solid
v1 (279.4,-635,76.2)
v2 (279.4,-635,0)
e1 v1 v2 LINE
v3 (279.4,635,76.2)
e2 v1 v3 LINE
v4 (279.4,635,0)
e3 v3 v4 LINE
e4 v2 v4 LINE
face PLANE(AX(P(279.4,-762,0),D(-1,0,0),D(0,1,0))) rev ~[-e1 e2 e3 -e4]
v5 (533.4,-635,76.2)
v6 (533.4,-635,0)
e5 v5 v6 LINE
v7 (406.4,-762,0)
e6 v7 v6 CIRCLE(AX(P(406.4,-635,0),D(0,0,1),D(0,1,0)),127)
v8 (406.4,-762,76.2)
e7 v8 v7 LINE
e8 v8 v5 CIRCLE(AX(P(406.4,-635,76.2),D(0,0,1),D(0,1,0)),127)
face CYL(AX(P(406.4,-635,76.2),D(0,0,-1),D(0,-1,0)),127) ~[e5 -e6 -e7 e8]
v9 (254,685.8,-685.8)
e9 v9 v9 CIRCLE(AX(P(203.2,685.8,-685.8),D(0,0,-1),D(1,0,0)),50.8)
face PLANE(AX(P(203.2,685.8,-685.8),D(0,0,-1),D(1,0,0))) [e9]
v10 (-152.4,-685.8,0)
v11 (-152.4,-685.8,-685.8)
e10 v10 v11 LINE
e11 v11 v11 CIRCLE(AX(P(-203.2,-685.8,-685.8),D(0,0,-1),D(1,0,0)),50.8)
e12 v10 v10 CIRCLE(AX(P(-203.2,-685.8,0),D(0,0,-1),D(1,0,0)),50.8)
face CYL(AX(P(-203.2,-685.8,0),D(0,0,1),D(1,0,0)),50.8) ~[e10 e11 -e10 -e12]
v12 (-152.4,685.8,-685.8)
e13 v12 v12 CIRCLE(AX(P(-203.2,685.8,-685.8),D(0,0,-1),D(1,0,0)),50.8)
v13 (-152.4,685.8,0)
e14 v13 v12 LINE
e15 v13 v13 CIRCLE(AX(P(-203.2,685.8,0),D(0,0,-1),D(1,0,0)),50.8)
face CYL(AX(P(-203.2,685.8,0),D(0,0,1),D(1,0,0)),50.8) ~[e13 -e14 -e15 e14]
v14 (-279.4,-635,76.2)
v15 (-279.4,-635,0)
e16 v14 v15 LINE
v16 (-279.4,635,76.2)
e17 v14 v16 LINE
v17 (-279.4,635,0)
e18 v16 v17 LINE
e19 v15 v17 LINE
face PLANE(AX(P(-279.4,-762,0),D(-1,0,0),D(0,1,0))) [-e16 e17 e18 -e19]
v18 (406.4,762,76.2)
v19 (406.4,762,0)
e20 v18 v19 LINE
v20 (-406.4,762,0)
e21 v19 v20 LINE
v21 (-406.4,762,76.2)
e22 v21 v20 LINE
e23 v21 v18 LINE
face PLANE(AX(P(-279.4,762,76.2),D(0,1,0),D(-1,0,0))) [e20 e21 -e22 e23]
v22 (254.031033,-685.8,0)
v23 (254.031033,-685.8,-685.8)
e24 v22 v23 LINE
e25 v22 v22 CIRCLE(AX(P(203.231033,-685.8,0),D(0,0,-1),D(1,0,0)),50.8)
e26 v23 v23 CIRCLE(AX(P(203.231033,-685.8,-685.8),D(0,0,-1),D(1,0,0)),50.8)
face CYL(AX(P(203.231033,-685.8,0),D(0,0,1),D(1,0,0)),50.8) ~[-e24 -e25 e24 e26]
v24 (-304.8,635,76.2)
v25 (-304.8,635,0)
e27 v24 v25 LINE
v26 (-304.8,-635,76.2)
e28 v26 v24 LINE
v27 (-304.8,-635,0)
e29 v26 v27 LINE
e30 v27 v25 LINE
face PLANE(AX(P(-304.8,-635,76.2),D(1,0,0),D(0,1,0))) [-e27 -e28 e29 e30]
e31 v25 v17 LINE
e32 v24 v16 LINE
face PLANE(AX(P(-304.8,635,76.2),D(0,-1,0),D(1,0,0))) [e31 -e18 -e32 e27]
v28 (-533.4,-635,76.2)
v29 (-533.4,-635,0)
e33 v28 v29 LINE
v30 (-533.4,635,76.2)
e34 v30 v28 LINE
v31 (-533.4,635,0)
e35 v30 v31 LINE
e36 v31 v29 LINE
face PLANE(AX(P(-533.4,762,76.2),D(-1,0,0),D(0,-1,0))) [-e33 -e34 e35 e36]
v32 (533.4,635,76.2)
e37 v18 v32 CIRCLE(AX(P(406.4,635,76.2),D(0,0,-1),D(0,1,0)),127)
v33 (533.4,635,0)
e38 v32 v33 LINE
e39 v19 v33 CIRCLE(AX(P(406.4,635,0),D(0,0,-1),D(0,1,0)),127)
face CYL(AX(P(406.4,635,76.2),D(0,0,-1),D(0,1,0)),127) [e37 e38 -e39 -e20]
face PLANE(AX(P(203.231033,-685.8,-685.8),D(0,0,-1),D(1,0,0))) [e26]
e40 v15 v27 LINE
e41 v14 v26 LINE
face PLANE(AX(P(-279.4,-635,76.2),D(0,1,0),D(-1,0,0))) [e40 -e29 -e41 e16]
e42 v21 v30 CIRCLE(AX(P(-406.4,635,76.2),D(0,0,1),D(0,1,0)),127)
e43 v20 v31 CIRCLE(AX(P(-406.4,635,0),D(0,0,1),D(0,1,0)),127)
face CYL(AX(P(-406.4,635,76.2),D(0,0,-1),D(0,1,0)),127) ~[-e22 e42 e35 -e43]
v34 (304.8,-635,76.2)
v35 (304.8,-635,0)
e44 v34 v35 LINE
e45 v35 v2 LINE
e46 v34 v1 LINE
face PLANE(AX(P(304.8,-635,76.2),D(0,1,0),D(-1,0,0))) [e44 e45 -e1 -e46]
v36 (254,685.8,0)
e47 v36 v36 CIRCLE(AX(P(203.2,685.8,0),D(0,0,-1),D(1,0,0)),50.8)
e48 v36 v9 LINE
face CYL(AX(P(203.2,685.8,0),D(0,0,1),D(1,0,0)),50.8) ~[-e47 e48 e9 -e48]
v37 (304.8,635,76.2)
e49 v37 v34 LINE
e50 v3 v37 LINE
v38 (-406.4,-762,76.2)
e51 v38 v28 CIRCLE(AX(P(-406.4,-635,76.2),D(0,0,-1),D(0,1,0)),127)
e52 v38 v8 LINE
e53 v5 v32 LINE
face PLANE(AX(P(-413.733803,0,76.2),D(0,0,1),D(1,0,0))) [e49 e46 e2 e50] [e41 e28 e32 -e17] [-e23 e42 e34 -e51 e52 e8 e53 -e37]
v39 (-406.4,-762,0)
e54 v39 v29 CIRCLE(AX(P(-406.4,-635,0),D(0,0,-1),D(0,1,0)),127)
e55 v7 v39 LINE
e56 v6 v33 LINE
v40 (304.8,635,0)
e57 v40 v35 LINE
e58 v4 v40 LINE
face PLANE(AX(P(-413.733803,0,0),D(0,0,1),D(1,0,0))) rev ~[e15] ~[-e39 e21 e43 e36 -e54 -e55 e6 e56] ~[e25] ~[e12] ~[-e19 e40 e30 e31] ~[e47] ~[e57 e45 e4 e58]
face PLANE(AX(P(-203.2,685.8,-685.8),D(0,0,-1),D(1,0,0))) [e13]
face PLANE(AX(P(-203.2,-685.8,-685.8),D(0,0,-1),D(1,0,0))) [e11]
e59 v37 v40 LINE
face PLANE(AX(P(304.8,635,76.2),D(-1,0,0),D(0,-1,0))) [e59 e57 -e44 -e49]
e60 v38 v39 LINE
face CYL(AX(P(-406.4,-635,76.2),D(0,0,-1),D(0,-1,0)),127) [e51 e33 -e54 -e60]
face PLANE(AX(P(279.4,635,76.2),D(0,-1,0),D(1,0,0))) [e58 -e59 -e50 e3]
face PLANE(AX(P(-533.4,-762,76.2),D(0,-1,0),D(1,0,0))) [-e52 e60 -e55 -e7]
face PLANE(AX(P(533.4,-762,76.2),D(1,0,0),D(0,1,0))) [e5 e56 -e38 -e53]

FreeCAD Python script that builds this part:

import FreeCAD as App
import Part
import Sketcher
Q = App.Units.Quantity


def edges_at(feature, points):
    """Names of the edges that pass closest to the given points."""
    edges = feature.Shape.Edges
    near = lambda p: min(range(len(edges)), key=lambda i: edges[i].distToShape(Part.Vertex(*p))[0])
    return sorted({f"Edge{near(p) + 1}" for p in points})

doc = App.newDocument("Part")
body = doc.addObject("PartDesign::Body", "Body")

# Sketch on XY plane
sketch1 = body.newObject("Sketcher::SketchObject", "Sketch")
sketch1.AttachmentSupport = (doc.getObject("XY_Plane"), [""])
sketch1.MapMode = "FlatFace"
sketch1.addGeometry(Part.LineSegment(App.Vector(-279.4, 762, 0), App.Vector(-279.4, -762, 0)), False)
sketch1.addGeometry(Part.LineSegment(App.Vector(-279.4, -762, 0), App.Vector(279.4, -762, 0)), False)
sketch1.addGeometry(Part.LineSegment(App.Vector(279.4, -762, 0), App.Vector(279.4, 762, 0)), False)
sketch1.addGeometry(Part.LineSegment(App.Vector(279.4, 762, 0), App.Vector(-279.4, 762, 0)), False)
sketch1.addConstraint(Sketcher.Constraint("Coincident", 0, 2, 1, 1))
sketch1.addConstraint(Sketcher.Constraint("Coincident", 1, 2, 2, 1))
sketch1.addConstraint(Sketcher.Constraint("Coincident", 2, 2, 3, 1))
sketch1.addConstraint(Sketcher.Constraint("Coincident", 3, 2, 0, 1))
sketch1.addConstraint(Sketcher.Constraint("Vertical", 0))
sketch1.addConstraint(Sketcher.Constraint("Horizontal", 1))
sketch1.addConstraint(Sketcher.Constraint("Vertical", 2))
sketch1.addConstraint(Sketcher.Constraint("Horizontal", 3))
sketch1.addConstraint(Sketcher.Constraint("Symmetric", 0, 2, 2, 2, -1, 1))
sketch1.addConstraint(Sketcher.Constraint("DistanceX", 1, 1, 1, 2, Q("22 in")))
sketch1.addConstraint(Sketcher.Constraint("DistanceY", 0, 2, 0, 1, Q("60 in")))
pad1 = body.newObject("PartDesign::Pad", "Pad")
pad1.Profile = sketch1
pad1.Length = Q("3 in")

# Sketch on XY plane
sketch2 = body.newObject("Sketcher::SketchObject", "Sketch001")
sketch2.AttachmentSupport = (doc.getObject("XY_Plane"), [""])
sketch2.MapMode = "FlatFace"
sketch2.addGeometry(Part.Circle(App.Vector(-203.2, 685.8, 0), App.Vector(0, 0, 1), 50.8), False)
sketch2.addGeometry(Part.Circle(App.Vector(203.2, 685.8, 0), App.Vector(0, 0, 1), 50.8), False)
sketch2.addGeometry(Part.Circle(App.Vector(203.231033, -685.8, 0), App.Vector(0, 0, 1), 50.8), False)
sketch2.addGeometry(Part.Circle(App.Vector(-203.2, -685.8, 0), App.Vector(0, 0, 1), 50.8), False)
sketch2.addConstraint(Sketcher.Constraint("Equal", 0, 1))
sketch2.addConstraint(Sketcher.Constraint("Equal", 1, 2))
sketch2.addConstraint(Sketcher.Constraint("Equal", 2, 3))
sketch2.addConstraint(Sketcher.Constraint("Symmetric", 1, 3, 3, 3, -1, 1))
sketch2.addConstraint(Sketcher.Constraint("Symmetric", 0, 3, 1, 3, -2))
sketch2.addConstraint(Sketcher.Constraint("Horizontal", 2, 3, 3, 3))
sketch2.addConstraint(Sketcher.Constraint("Diameter", 0, Q("4 in")))
sketch2.addConstraint(Sketcher.Constraint("DistanceX", 0, 3, -1, 1, Q("8 in")))
sketch2.addConstraint(Sketcher.Constraint("DistanceY", -1, 1, 0, 3, Q("27 in")))
sketch2.addConstraint(Sketcher.Constraint("DistanceX", -1, 1, 2, 3, Q("203.231033 mm")))
pad2 = body.newObject("PartDesign::Pad", "Pad001")
pad2.Profile = sketch2
pad2.Length = Q("27 in")
pad2.Reversed = True

# Sketch on XY plane
sketch3 = body.newObject("Sketcher::SketchObject", "Sketch002")
sketch3.AttachmentSupport = (doc.getObject("XY_Plane"), [""])
sketch3.MapMode = "FlatFace"
sketch3.AttachmentOffset = App.Placement(App.Vector(0, 0, 3 * 25.4), App.Rotation())
sketch3.addGeometry(Part.LineSegment(App.Vector(-279.4, 635, 0), App.Vector(-279.4, 762, 0)), False)
sketch3.addGeometry(Part.LineSegment(App.Vector(-279.4, 762, 0), App.Vector(-533.4, 762, 0)), False)
sketch3.addGeometry(Part.LineSegment(App.Vector(-533.4, 762, 0), App.Vector(-533.4, -762, 0)), False)
sketch3.addGeometry(Part.LineSegment(App.Vector(-533.4, -762, 0), App.Vector(-279.4, -762, 0)), False)
sketch3.addGeometry(Part.LineSegment(App.Vector(-279.4, -762, 0), App.Vector(-279.4, -635, 0)), False)
sketch3.addGeometry(Part.LineSegment(App.Vector(-279.4, -635, 0), App.Vector(-304.8, -635, 0)), False)
sketch3.addGeometry(Part.LineSegment(App.Vector(-304.8, -635, 0), App.Vector(-304.8, 635, 0)), False)
sketch3.addGeometry(Part.LineSegment(App.Vector(-304.8, 635, 0), App.Vector(-279.4, 635, 0)), False)
sketch3.addGeometry(Part.LineSegment(App.Vector(533.4, 762, 0), App.Vector(279.4, 762, 0)), False)
sketch3.addGeometry(Part.LineSegment(App.Vector(279.4, 762, 0), App.Vector(279.4, 635, 0)), False)
sketch3.addGeometry(Part.LineSegment(App.Vector(279.4, 635, 0), App.Vector(304.8, 635, 0)), False)
sketch3.addGeometry(Part.LineSegment(App.Vector(304.8, 635, 0), App.Vector(304.8, -635, 0)), False)
sketch3.addGeometry(Part.LineSegment(App.Vector(304.8, -635, 0), App.Vector(279.4, -635, 0)), False)
sketch3.addGeometry(Part.LineSegment(App.Vector(279.4, -635, 0), App.Vector(279.4, -762, 0)), False)
sketch3.addGeometry(Part.LineSegment(App.Vector(279.4, -762, 0), App.Vector(533.4, -762, 0)), False)
sketch3.addGeometry(Part.LineSegment(App.Vector(533.4, -762, 0), App.Vector(533.4, 762, 0)), False)
sketch3.addConstraint(Sketcher.Constraint("Coincident", 0, 2, 1, 1))
sketch3.addConstraint(Sketcher.Constraint("Coincident", 1, 2, 2, 1))
sketch3.addConstraint(Sketcher.Constraint("Coincident", 2, 2, 3, 1))
sketch3.addConstraint(Sketcher.Constraint("Coincident", 3, 2, 4, 1))
sketch3.addConstraint(Sketcher.Constraint("Coincident", 4, 2, 5, 1))
sketch3.addConstraint(Sketcher.Constraint("Coincident", 5, 2, 6, 1))
sketch3.addConstraint(Sketcher.Constraint("Coincident", 6, 2, 7, 1))
sketch3.addConstraint(Sketcher.Constraint("Coincident", 7, 2, 0, 1))
sketch3.addConstraint(Sketcher.Constraint("Coincident", 8, 2, 9, 1))
sketch3.addConstraint(Sketcher.Constraint("Coincident", 9, 2, 10, 1))
sketch3.addConstraint(Sketcher.Constraint("Coincident", 10, 2, 11, 1))
sketch3.addConstraint(Sketcher.Constraint("Coincident", 11, 2, 12, 1))
sketch3.addConstraint(Sketcher.Constraint("Coincident", 12, 2, 13, 1))
sketch3.addConstraint(Sketcher.Constraint("Coincident", 13, 2, 14, 1))
sketch3.addConstraint(Sketcher.Constraint("Coincident", 14, 2, 15, 1))
sketch3.addConstraint(Sketcher.Constraint("Coincident", 15, 2, 8, 1))
sketch3.addConstraint(Sketcher.Constraint("Vertical", 0))
sketch3.addConstraint(Sketcher.Constraint("Horizontal", 1))
sketch3.addConstraint(Sketcher.Constraint("Vertical", 2))
sketch3.addConstraint(Sketcher.Constraint("Horizontal", 3))
sketch3.addConstraint(Sketcher.Constraint("Vertical", 4))
sketch3.addConstraint(Sketcher.Constraint("Horizontal", 5))
sketch3.addConstraint(Sketcher.Constraint("Vertical", 6))
sketch3.addConstraint(Sketcher.Constraint("Horizontal", 7))
sketch3.addConstraint(Sketcher.Constraint("Horizontal", 8))
sketch3.addConstraint(Sketcher.Constraint("Vertical", 9))
sketch3.addConstraint(Sketcher.Constraint("Horizontal", 10))
sketch3.addConstraint(Sketcher.Constraint("Vertical", 11))
sketch3.addConstraint(Sketcher.Constraint("Horizontal", 12))
sketch3.addConstraint(Sketcher.Constraint("Vertical", 13))
sketch3.addConstraint(Sketcher.Constraint("Horizontal", 14))
sketch3.addConstraint(Sketcher.Constraint("Vertical", 15))
sketch3.addConstraint(Sketcher.Constraint("Symmetric", 3, 2, 8, 2, -1, 1))
sketch3.addConstraint(Sketcher.Constraint("Symmetric", 5, 2, 10, 2, -1, 1))
sketch3.addConstraint(Sketcher.Constraint("Symmetric", 7, 2, 12, 2, -1, 1))
sketch3.addConstraint(Sketcher.Constraint("Symmetric", 1, 2, 14, 2, -1, 1))
sketch3.addConstraint(Sketcher.Constraint("Symmetric", 0, 2, 8, 2, -2))
sketch3.addConstraint(Sketcher.Constraint("Horizontal", 7, 2, 9, 2))
sketch3.addConstraint(Sketcher.Constraint("DistanceX", 1, 2, 1, 1, Q("10 in")))
sketch3.addConstraint(Sketcher.Constraint("DistanceX", 5, 2, 5, 1, Q("1 in")))
sketch3.addConstraint(Sketcher.Constraint("DistanceY", 0, 1, 0, 2, Q("5 in")))
sketch3.addConstraint(Sketcher.Constraint("DistanceY", 2, 2, 2, 1, Q("60 in")))
sketch3.addConstraint(Sketcher.Constraint("DistanceX", 0, 2, -1, 1, Q("11 in")))
pad3 = body.newObject("PartDesign::Pad", "Pad002")
pad3.Profile = sketch3
pad3.Length = Q("3 in")
pad3.Reversed = True
doc.recompute()

fillet = body.newObject("PartDesign::Fillet", "Fillet")
fillet.Base = (pad3, edges_at(pad3, [
    (-533.4, -762, 38.1),
    (533.4, -762, 38.1),
    (533.4, 762, 38.1),
    (-533.4, 762, 38.1),
]))
fillet.Radius = Q("5 in")

doc.recompute()
